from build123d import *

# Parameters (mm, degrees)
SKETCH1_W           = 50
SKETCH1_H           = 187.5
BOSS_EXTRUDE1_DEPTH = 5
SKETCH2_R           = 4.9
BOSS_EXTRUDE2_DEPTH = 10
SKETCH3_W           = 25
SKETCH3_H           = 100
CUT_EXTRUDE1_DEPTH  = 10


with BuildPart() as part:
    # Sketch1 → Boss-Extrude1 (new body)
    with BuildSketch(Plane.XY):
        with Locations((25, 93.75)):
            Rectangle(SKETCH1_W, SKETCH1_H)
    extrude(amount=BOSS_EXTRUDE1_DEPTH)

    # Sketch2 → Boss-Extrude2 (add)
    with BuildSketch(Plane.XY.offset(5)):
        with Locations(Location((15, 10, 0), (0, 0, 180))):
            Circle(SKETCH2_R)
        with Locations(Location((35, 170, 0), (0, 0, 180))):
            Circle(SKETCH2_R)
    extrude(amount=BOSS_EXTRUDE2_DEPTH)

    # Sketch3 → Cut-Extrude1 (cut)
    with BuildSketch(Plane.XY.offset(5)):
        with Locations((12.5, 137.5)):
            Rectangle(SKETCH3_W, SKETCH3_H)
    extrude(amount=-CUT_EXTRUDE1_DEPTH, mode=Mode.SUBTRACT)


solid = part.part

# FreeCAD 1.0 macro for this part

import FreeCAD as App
import Part
import Sketcher
from FreeCAD import Vector
Q = App.Units.Quantity

doc = App.newDocument("Part")
body = doc.addObject("PartDesign::Body", "Body")

sketch1 = body.newObject("Sketcher::SketchObject", "Sketch")
sketch1.AttachmentSupport = (doc.getObject("XY_Plane"), [""])
sketch1.MapMode = "FlatFace"
sketch1.addGeometry([
    Part.LineSegment(Vector(0, 188, 0), Vector(0, 0, 0)),
    Part.LineSegment(Vector(0, 0, 0), Vector(50, 0, 0)),
    Part.LineSegment(Vector(50, 0, 0), Vector(50, 188, 0)),
    Part.LineSegment(Vector(50, 188, 0), Vector(0, 188, 0)),
], False)
sketch1.addConstraint([
    Sketcher.Constraint("Coincident", 0, 2, 1, 1),
    Sketcher.Constraint("Coincident", 1, 2, 2, 1),
    Sketcher.Constraint("Coincident", 2, 2, 3, 1),
    Sketcher.Constraint("Coincident", 3, 2, 0, 1),
    Sketcher.Constraint("Vertical", 0),
    Sketcher.Constraint("Horizontal", 1),
    Sketcher.Constraint("Vertical", 2),
    Sketcher.Constraint("Horizontal", 3),
    Sketcher.Constraint("Coincident", 0, 2, -1, 1),
    Sketcher.Constraint("DistanceX", 1, 1, 1, 2, Q("50 mm")),
    Sketcher.Constraint("DistanceY", 0, 2, 0, 1, Q("187.5 mm")),
])
pad1 = body.newObject("PartDesign::Pad", "Pad")
pad1.Profile = sketch1
pad1.Length = 5

sketch2 = body.newObject("Sketcher::SketchObject", "Sketch001")
sketch2.AttachmentSupport = (doc.getObject("XY_Plane"), [""])
sketch2.MapMode = "FlatFace"
sketch2.AttachmentOffset = App.Placement(Vector(0, 0, 5), App.Rotation())
sketch2.addGeometry([
    Part.Circle(Vector(15, 10, 0), Vector(0, 0, 1), 4.9),
    Part.Circle(Vector(35, 170, 0), Vector(0, 0, 1), 4.9),
], False)
sketch2.addConstraint([
    Sketcher.Constraint("Equal", 0, 1),
    Sketcher.Constraint("Diameter", 0, Q("9.8 mm")),
    Sketcher.Constraint("DistanceX", -1, 1, 0, 3, Q("15 mm")),
    Sketcher.Constraint("DistanceY", -1, 1, 0, 3, Q("10 mm")),
    Sketcher.Constraint("DistanceX", -1, 1, 1, 3, Q("35 mm")),
    Sketcher.Constraint("DistanceY", -1, 1, 1, 3, Q("170 mm")),
])
pad2 = body.newObject("PartDesign::Pad", "Pad001")
pad2.Profile = sketch2
pad2.Length = 10

sketch3 = body.newObject("Sketcher::SketchObject", "Sketch002")
sketch3.AttachmentSupport = (doc.getObject("XY_Plane"), [""])
sketch3.MapMode = "FlatFace"
sketch3.AttachmentOffset = App.Placement(Vector(0, 0, 5), App.Rotation())
sketch3.addGeometry([
    Part.LineSegment(Vector(0, 188, 0), Vector(0, 88, 0)),
    Part.LineSegment(Vector(0, 88, 0), Vector(25, 88, 0)),
    Part.LineSegment(Vector(25, 88, 0), Vector(25, 188, 0)),
    Part.LineSegment(Vector(25, 188, 0), Vector(0, 188, 0)),
], False)
sketch3.addConstraint([
    Sketcher.Constraint("Coincident", 0, 2, 1, 1),
    Sketcher.Constraint("Coincident", 1, 2, 2, 1),
    Sketcher.Constraint("Coincident", 2, 2, 3, 1),
    Sketcher.Constraint("Coincident", 3, 2, 0, 1),
    Sketcher.Constraint("Vertical", 0),
    Sketcher.Constraint("Horizontal", 1),
    Sketcher.Constraint("Vertical", 2),
    Sketcher.Constraint("Horizontal", 3),
    Sketcher.Constraint("PointOnObject", 0, 2, -2),
    Sketcher.Constraint("DistanceX", 1, 1, 1, 2, Q("25 mm")),
    Sketcher.Constraint("DistanceY", 0, 2, 0, 1, Q("100 mm")),
    Sketcher.Constraint("DistanceY", -1, 1, 0, 2, Q("87.5 mm")),
])
pocket1 = body.newObject("PartDesign::Pocket", "Pocket")
pocket1.Profile = sketch3
pocket1.Length = 10

doc.recompute()
